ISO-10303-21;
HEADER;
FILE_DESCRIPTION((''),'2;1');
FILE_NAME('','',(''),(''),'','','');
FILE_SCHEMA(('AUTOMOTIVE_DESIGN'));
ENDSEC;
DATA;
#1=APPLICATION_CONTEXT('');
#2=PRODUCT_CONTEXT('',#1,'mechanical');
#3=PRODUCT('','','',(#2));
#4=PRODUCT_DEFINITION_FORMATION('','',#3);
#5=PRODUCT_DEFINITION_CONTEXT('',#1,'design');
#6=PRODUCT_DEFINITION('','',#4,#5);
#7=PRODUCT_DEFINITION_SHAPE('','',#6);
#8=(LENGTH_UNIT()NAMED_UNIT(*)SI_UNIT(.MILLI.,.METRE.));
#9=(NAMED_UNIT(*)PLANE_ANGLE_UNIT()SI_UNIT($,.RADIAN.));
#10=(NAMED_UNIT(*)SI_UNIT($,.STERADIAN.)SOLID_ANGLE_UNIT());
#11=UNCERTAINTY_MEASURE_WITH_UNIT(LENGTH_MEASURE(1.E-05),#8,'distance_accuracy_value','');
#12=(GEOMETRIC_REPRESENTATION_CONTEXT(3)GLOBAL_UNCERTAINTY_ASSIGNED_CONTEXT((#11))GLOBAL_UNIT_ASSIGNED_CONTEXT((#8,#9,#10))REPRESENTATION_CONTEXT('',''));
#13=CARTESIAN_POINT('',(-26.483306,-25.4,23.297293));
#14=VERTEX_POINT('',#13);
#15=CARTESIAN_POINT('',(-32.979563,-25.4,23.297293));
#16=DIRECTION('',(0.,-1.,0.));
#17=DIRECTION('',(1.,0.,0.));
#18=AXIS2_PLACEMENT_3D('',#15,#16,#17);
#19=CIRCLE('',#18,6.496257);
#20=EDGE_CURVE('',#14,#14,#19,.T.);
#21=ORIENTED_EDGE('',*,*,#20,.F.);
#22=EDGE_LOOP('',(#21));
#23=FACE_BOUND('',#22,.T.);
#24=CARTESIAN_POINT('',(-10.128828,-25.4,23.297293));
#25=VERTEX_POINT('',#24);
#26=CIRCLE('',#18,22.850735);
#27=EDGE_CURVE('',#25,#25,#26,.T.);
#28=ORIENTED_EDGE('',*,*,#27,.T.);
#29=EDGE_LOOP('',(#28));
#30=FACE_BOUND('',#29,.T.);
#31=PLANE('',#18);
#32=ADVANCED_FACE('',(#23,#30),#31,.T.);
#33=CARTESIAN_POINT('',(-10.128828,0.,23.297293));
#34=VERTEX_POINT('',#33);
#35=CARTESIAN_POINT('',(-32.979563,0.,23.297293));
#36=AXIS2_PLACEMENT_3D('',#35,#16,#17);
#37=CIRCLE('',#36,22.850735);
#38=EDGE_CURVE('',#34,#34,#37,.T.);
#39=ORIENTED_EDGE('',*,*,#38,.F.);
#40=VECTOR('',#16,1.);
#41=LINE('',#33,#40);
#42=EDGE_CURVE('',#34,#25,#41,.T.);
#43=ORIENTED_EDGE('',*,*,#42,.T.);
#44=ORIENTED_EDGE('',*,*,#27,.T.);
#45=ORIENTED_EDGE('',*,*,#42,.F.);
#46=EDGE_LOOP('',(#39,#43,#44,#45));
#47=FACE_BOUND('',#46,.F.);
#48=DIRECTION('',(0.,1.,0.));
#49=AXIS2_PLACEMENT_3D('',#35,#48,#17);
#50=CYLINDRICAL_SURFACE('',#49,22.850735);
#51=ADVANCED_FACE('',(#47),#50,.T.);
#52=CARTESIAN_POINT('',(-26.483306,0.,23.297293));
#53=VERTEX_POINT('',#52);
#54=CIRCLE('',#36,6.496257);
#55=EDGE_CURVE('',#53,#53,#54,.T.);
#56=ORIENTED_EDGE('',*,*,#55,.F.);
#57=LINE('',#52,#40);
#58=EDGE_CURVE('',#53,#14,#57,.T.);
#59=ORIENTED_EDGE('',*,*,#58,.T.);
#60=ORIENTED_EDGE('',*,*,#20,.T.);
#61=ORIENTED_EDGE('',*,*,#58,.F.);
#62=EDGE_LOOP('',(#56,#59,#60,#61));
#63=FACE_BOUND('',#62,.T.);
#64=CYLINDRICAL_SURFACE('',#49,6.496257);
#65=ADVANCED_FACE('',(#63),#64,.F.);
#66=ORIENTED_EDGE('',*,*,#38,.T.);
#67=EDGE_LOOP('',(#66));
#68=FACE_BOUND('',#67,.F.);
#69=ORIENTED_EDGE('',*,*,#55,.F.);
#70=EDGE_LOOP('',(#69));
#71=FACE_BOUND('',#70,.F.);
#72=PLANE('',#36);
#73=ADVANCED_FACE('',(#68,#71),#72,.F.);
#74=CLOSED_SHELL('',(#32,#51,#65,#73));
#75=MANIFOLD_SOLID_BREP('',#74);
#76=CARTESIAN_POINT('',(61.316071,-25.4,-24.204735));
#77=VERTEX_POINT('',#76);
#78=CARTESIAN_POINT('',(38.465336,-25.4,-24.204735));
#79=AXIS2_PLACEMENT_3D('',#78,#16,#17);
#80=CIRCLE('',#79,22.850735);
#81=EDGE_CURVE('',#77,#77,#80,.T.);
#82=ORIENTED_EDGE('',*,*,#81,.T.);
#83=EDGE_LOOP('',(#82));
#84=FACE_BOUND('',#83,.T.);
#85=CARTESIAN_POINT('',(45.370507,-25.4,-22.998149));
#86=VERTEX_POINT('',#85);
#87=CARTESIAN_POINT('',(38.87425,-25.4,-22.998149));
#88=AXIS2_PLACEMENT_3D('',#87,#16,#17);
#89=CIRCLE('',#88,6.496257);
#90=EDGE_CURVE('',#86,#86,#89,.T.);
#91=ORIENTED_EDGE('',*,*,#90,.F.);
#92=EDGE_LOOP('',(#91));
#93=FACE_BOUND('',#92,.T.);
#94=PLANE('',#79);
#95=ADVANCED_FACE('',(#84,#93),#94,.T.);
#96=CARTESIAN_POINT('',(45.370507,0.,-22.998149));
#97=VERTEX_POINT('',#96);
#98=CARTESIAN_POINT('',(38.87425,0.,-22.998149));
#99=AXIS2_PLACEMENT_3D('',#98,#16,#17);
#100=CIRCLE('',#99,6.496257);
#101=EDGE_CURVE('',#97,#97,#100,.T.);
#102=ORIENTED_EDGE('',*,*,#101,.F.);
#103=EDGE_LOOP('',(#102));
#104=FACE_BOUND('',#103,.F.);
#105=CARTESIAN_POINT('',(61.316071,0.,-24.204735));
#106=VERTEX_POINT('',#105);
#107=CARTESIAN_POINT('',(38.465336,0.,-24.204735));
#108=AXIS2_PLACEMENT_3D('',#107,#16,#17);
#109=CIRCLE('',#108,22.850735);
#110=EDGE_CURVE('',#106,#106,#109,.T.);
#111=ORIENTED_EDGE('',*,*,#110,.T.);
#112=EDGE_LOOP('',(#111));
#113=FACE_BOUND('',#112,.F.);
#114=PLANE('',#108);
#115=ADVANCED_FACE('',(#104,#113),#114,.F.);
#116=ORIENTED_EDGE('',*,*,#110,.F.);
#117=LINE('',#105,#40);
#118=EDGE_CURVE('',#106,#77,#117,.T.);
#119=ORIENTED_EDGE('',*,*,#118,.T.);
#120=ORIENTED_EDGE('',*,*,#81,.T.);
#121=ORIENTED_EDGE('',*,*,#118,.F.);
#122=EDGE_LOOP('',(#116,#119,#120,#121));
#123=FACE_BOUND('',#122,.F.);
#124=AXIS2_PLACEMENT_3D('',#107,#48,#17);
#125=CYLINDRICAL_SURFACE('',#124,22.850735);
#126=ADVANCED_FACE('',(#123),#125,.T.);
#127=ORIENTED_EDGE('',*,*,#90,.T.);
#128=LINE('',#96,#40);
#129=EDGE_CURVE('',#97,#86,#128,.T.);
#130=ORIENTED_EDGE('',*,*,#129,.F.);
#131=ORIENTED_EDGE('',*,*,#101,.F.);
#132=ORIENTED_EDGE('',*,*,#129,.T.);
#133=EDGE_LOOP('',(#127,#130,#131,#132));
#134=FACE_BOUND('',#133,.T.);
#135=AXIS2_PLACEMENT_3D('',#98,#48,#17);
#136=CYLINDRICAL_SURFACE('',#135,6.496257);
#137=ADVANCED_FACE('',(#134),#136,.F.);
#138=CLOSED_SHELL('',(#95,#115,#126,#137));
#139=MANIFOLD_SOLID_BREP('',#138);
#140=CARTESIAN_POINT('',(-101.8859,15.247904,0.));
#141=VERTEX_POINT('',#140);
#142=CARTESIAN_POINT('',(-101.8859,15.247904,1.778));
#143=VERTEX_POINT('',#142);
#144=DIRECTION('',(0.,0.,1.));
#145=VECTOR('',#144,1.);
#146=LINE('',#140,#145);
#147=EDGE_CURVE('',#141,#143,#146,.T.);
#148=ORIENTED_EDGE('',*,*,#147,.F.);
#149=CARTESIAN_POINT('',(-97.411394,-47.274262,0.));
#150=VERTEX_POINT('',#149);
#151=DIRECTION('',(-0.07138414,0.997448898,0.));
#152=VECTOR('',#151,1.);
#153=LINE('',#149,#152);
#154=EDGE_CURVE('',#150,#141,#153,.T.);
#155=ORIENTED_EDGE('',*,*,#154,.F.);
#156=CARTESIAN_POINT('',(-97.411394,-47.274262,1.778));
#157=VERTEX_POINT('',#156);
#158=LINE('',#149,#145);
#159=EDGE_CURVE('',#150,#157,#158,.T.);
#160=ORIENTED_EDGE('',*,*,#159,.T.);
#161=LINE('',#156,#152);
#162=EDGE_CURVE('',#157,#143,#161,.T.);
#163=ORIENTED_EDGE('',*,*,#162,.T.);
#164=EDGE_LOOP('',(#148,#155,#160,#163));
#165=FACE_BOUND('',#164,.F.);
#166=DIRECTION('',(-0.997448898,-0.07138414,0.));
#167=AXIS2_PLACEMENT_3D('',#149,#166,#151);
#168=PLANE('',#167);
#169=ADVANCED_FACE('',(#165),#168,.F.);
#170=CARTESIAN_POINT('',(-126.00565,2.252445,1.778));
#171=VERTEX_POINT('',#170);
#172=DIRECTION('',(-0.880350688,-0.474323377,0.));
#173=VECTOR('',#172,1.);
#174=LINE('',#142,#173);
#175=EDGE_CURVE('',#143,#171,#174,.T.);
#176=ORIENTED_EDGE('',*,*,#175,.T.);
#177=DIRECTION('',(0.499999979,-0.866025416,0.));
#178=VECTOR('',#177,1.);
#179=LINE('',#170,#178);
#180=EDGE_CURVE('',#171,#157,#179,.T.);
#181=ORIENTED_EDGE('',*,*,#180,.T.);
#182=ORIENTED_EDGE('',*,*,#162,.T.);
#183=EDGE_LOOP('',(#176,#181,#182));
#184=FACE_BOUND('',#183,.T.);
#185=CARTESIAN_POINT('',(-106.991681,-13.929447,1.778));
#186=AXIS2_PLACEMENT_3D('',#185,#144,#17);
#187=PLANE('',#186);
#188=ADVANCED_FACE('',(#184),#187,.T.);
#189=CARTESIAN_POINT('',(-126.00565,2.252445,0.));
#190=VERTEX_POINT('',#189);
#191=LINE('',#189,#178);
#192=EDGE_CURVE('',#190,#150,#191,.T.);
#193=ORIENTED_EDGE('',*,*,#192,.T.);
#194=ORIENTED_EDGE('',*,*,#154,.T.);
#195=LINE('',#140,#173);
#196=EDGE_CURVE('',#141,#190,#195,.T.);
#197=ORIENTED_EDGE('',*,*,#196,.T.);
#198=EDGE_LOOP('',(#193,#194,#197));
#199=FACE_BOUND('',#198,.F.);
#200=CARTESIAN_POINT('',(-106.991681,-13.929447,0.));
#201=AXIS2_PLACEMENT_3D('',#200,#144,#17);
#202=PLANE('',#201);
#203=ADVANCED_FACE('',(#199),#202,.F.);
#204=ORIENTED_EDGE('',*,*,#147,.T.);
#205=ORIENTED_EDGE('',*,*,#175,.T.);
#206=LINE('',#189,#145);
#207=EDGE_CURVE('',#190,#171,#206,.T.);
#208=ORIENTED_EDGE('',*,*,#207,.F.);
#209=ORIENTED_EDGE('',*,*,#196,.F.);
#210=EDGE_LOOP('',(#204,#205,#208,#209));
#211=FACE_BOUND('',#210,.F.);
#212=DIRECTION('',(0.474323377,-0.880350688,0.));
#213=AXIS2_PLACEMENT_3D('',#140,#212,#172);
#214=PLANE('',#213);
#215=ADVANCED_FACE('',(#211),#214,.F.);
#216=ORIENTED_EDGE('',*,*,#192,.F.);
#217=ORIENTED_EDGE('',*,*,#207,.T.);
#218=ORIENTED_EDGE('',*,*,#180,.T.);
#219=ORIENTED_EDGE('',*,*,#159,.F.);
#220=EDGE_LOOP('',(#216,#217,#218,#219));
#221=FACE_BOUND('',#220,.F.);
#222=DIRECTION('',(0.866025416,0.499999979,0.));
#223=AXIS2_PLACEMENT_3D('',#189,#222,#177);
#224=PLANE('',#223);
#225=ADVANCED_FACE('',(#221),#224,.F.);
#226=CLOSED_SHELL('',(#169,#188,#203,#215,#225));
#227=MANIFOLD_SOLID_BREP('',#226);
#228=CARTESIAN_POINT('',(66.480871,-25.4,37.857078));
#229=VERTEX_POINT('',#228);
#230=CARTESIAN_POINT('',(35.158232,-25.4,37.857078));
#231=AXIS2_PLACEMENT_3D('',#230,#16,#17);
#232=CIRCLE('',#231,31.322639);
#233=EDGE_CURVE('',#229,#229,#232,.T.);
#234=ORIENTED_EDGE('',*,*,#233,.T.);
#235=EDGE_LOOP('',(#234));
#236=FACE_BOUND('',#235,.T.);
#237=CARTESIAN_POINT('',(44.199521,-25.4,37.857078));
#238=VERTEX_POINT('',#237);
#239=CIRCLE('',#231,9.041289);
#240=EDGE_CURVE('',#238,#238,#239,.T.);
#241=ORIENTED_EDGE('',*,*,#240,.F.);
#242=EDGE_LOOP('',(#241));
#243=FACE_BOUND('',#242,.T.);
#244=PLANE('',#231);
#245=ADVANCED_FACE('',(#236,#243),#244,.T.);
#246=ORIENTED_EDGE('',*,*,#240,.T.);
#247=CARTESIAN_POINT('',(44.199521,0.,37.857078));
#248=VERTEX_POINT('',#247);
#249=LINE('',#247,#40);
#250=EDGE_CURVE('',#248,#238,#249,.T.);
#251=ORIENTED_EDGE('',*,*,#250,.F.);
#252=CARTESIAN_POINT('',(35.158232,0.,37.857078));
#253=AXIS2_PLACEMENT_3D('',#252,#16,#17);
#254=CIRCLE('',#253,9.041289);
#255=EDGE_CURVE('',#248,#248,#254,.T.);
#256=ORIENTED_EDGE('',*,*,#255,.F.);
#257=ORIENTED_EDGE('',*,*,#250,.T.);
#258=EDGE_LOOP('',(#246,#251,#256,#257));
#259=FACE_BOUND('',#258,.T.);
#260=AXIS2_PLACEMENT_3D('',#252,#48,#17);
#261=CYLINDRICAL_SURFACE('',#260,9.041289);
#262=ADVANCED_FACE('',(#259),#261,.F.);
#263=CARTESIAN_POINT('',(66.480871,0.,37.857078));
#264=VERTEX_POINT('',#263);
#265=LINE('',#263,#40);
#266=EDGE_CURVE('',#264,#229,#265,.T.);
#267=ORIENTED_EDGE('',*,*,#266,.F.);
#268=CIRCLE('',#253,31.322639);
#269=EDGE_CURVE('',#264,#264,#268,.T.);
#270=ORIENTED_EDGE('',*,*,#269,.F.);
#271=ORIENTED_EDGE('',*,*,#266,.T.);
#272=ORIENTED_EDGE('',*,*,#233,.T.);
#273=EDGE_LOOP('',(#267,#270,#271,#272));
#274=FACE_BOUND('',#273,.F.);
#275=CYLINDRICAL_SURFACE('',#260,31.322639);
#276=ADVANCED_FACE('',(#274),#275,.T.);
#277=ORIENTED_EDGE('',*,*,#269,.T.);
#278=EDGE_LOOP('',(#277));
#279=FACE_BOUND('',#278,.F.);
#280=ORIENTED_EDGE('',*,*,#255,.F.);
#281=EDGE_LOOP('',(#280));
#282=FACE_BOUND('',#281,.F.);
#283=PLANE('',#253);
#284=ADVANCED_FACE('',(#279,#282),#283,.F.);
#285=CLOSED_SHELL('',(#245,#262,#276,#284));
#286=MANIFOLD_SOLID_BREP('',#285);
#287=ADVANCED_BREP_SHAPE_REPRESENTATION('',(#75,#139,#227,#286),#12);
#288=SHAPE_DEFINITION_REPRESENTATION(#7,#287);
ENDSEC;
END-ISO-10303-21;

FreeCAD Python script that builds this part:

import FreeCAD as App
import Part
import Sketcher
Q = App.Units.Quantity


def add_polygon(sketch, points):
    """Adds a closed chain of lines whose ends are joined by coincident constraints."""
    first, n = sketch.GeometryCount, len(points)
    for a, b in zip(points, points[1:] + points[:1]):
        sketch.addGeometry(Part.LineSegment(App.Vector(*a, 0), App.Vector(*b, 0)), False)
    for i in range(n):
        sketch.addConstraint(Sketcher.Constraint("Coincident", first + i, 2, first + (i + 1) % n, 1))

doc = App.newDocument("Part")
body = doc.addObject("PartDesign::Body", "Body")

# Sketch on XY plane
sketch1 = body.newObject("Sketcher::SketchObject", "Sketch")
sketch1.AttachmentSupport = (doc.getObject("XY_Plane"), [""])
sketch1.MapMode = "FlatFace"
add_polygon(sketch1, [(-126.00565, 2.252445), (-97.411394, -47.274262), (-101.8859, 15.247904)])  # lines 0-2
sketch1.addConstraint([
    Sketcher.Constraint("Angle", 0, Q("-60.000001 deg")),
    Sketcher.Constraint("DistanceX", 1, 2, -1, 1, 101.8859),
    Sketcher.Constraint("Distance", 2, 27.397889),
    Sketcher.Constraint("DistanceX", 2, 2, -1, 1, 126.00565),
    Sketcher.Constraint("Distance", 0, 57.188514),
    Sketcher.Constraint("DistanceY", 0, 2, -1, 1, 47.274262),
])
pad1 = body.newObject("PartDesign::Pad", "Pad")
pad1.Profile = sketch1
pad1.Length = Q("0.07 in")
body2 = doc.addObject("PartDesign::Body", "Body001")
body2.AllowCompound = True

# Sketch on XZ plane
sketch2 = body2.newObject("Sketcher::SketchObject", "Sketch001")
sketch2.AttachmentSupport = (doc.getObject("XZ_Plane001"), [""])
sketch2.MapMode = "FlatFace"
sketch2.addGeometry([
    Part.Circle(App.Vector(-32.979563, 23.297293, 0), App.Vector(0, 0, 1), 22.850735),  # 0
    Part.Circle(App.Vector(-32.979563, 23.297293, 0), App.Vector(0, 0, 1), 6.496257),  # 1
    Part.Circle(App.Vector(35.158232, 37.857078, 0), App.Vector(0, 0, 1), 31.322639),  # 2
    Part.Circle(App.Vector(35.158232, 37.857078, 0), App.Vector(0, 0, 1), 9.041289),  # 3
    Part.Circle(App.Vector(38.465336, -24.204735, 0), App.Vector(0, 0, 1), 22.850735),  # 4
    Part.Circle(App.Vector(38.87425, -22.998149, 0), App.Vector(0, 0, 1), 6.496257),  # 5
], False)
sketch2.addConstraint([
    Sketcher.Constraint("Coincident", 1, 3, 0, 3),
    Sketcher.Constraint("Coincident", 3, 3, 2, 3),
    Sketcher.Constraint("Equal", 0, 4),
    Sketcher.Constraint("Equal", 1, 5),
    Sketcher.Constraint("Diameter", 0, 45.70147),
    Sketcher.Constraint("Diameter", 3, 18.082578),
    Sketcher.Constraint("Diameter", 1, 12.992514),
    Sketcher.Constraint("Diameter", 2, 62.645278),
    Sketcher.Constraint("DistanceX", 2, 3, 5, 3, Q("0.1462999 in")),
    Sketcher.Constraint("DistanceX", 0, 3, 4, 3, 71.444899),
    Sketcher.Constraint("DistanceX", -1, 1, 2, 3, 35.158232),
    Sketcher.Constraint("DistanceY", 5, 3, -1, 1, 22.998149),
    Sketcher.Constraint("DistanceX", 0, 3, -1, 1, 32.979563),
    Sketcher.Constraint("DistanceY", -1, 1, 0, 3, 23.297293),
    Sketcher.Constraint("DistanceY", -1, 1, 2, 3, 37.857078),
    Sketcher.Constraint("DistanceY", 4, 3, -1, 1, 24.204735),
])
pad2 = body2.newObject("PartDesign::Pad", "Pad001")
pad2.Profile = sketch2
pad2.Length = Q("1 in")

doc.recompute()
